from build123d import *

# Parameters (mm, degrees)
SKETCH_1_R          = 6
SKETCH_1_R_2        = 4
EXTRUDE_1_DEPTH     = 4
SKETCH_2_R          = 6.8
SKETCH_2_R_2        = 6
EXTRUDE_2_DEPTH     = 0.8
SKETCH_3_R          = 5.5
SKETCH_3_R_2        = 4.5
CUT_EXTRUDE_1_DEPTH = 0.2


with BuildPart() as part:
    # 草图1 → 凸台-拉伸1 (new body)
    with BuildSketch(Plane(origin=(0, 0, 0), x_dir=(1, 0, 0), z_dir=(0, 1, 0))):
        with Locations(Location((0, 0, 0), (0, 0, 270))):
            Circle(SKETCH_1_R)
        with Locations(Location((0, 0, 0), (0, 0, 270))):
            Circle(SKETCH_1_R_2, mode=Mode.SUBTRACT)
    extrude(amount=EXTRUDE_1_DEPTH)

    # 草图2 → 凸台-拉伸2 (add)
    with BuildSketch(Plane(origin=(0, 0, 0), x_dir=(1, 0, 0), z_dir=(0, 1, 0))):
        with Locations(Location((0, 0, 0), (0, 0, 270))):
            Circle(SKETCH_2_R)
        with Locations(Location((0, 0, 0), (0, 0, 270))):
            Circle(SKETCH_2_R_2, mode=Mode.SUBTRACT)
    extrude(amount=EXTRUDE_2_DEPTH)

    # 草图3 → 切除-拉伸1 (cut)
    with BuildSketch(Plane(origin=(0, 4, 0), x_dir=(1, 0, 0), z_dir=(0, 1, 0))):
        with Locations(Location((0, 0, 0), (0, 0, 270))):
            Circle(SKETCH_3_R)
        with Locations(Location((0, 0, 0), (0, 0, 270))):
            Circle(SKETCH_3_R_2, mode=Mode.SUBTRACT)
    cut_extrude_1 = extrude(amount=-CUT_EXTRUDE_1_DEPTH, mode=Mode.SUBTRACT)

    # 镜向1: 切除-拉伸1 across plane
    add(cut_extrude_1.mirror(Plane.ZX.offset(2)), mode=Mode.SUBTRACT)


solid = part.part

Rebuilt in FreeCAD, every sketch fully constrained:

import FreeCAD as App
import Part
import Sketcher
from FreeCAD import Vector

doc = App.newDocument("Part")
body = doc.addObject("PartDesign::Body", "Body")

# Sketch on XZ plane
sketch1 = body.newObject("Sketcher::SketchObject", "Sketch")
sketch1.AttachmentSupport = (doc.getObject("XZ_Plane"), [""])
sketch1.MapMode = "FlatFace"
sketch1.addGeometry(Part.Circle(Vector(0, 0, 0), Vector(0, 0, 1), 6), False)
sketch1.addGeometry(Part.Circle(Vector(0, 0, 0), Vector(0, 0, 1), 4), False)
sketch1.addConstraint(Sketcher.Constraint("Coincident", 0, 3, -1, 1))
sketch1.addConstraint(Sketcher.Constraint("Coincident", 1, 3, -1, 1))
sketch1.addConstraint(Sketcher.Constraint("Diameter", 0, 12.0))
sketch1.addConstraint(Sketcher.Constraint("Diameter", 1, 8.0))
pad1 = body.newObject("PartDesign::Pad", "Pad")
pad1.Profile = sketch1
pad1.Length = 4
pad1.Reversed = True

# Sketch on XZ plane
sketch2 = body.newObject("Sketcher::SketchObject", "Sketch001")
sketch2.AttachmentSupport = (doc.getObject("XZ_Plane"), [""])
sketch2.MapMode = "FlatFace"
sketch2.addGeometry(Part.Circle(Vector(0, 0, 0), Vector(0, 0, 1), 7), False)
sketch2.addGeometry(Part.Circle(Vector(0, 0, 0), Vector(0, 0, 1), 6), False)
sketch2.addConstraint(Sketcher.Constraint("Coincident", 0, 3, -1, 1))
sketch2.addConstraint(Sketcher.Constraint("Coincident", 1, 3, -1, 1))
sketch2.addConstraint(Sketcher.Constraint("Diameter", 1, 12.0))
sketch2.addConstraint(Sketcher.Constraint("Diameter", 0, 13.6))
pad2 = body.newObject("PartDesign::Pad", "Pad001")
pad2.Profile = sketch2
pad2.Length = 0.8
pad2.Reversed = True

# Sketch on XZ plane
sketch3 = body.newObject("Sketcher::SketchObject", "Sketch002")
sketch3.AttachmentSupport = (doc.getObject("XZ_Plane"), [""])
sketch3.MapMode = "FlatFace"
sketch3.AttachmentOffset = App.Placement(Vector(0, 0, -4), App.Rotation())
sketch3.addGeometry(Part.Circle(Vector(0, 0, 0), Vector(0, 0, 1), 5.5), False)
sketch3.addGeometry(Part.Circle(Vector(0, 0, 0), Vector(0, 0, 1), 4.5), False)
sketch3.addConstraint(Sketcher.Constraint("Coincident", 0, 3, -1, 1))
sketch3.addConstraint(Sketcher.Constraint("Coincident", 1, 3, -1, 1))
sketch3.addConstraint(Sketcher.Constraint("Diameter", 0, 11.0))
sketch3.addConstraint(Sketcher.Constraint("Diameter", 1, 9.0))
pocket1 = body.newObject("PartDesign::Pocket", "Pocket")
pocket1.Profile = sketch3
pocket1.Length = 0.2
pocket1.Reversed = True
doc.recompute()

datumplane = body.newObject("PartDesign::Plane", "DatumPlane")
datumplane.AttachmentSupport = (doc.getObject("XZ_Plane"), [""])
datumplane.MapMode = "FlatFace"
datumplane.AttachmentOffset = App.Placement(Vector(0, 0, -2), App.Rotation())
mirrored = body.newObject("PartDesign::Mirrored", "Mirrored")
mirrored.Originals = [pocket1]
mirrored.MirrorPlane = (datumplane, [""])
body.Tip = mirrored

doc.recompute()
